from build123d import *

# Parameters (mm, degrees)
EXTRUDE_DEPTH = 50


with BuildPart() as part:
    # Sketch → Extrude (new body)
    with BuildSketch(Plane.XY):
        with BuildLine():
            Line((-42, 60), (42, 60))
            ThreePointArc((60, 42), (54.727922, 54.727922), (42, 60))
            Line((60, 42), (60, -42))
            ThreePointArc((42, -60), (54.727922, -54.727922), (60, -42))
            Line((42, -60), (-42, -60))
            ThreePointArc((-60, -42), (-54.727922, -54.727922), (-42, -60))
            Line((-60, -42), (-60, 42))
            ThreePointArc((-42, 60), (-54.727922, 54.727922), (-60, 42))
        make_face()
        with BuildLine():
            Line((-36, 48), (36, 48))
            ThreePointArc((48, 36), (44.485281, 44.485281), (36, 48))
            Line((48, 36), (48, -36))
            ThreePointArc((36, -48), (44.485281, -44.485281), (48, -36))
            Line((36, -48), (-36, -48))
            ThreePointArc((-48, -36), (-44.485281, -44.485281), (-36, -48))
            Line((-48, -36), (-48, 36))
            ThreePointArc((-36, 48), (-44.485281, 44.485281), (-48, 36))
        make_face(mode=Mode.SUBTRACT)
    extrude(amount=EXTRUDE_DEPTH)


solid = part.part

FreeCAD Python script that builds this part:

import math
import FreeCAD as App
import Part
import Sketcher

doc = App.newDocument("Part")
body = doc.addObject("PartDesign::Body", "Body")

# Sketch on XY plane
sketch1 = body.newObject("Sketcher::SketchObject", "Sketch")
sketch1.AttachmentSupport = (doc.getObject("XY_Plane"), [""])
sketch1.MapMode = "FlatFace"
sketch1.addGeometry([
    Part.LineSegment(App.Vector(42, 60, 0), App.Vector(-42, 60, 0)),  # 0
    Part.ArcOfCircle(Part.Circle(App.Vector(-42, 42, 0), App.Vector(0, 0, 1), 18), math.radians(90), math.radians(180)),  # 1
    Part.LineSegment(App.Vector(-60, 42, 0), App.Vector(-60, -42, 0)),  # 2
    Part.ArcOfCircle(Part.Circle(App.Vector(-42, -42, 0), App.Vector(0, 0, 1), 18), math.radians(-180), math.radians(-90)),  # 3
    Part.LineSegment(App.Vector(-42, -60, 0), App.Vector(42, -60, 0)),  # 4
    Part.ArcOfCircle(Part.Circle(App.Vector(42, -42, 0), App.Vector(0, 0, 1), 18), math.radians(-90), math.radians(0)),  # 5
    Part.LineSegment(App.Vector(60, -42, 0), App.Vector(60, 42, 0)),  # 6
    Part.ArcOfCircle(Part.Circle(App.Vector(42, 42, 0), App.Vector(0, 0, 1), 18), math.radians(0), math.radians(90)),  # 7
    Part.LineSegment(App.Vector(-36, 48, 0), App.Vector(36, 48, 0)),  # 8
    Part.ArcOfCircle(Part.Circle(App.Vector(36, 36, 0), App.Vector(0, 0, 1), 12), math.radians(0), math.radians(90)),  # 9
    Part.LineSegment(App.Vector(48, 36, 0), App.Vector(48, -36, 0)),  # 10
    Part.ArcOfCircle(Part.Circle(App.Vector(36, -36, 0), App.Vector(0, 0, 1), 12), math.radians(-90), math.radians(0)),  # 11
    Part.LineSegment(App.Vector(36, -48, 0), App.Vector(-36, -48, 0)),  # 12
    Part.ArcOfCircle(Part.Circle(App.Vector(-36, -36, 0), App.Vector(0, 0, 1), 12), math.radians(-180), math.radians(-90)),  # 13
    Part.LineSegment(App.Vector(-48, -36, 0), App.Vector(-48, 36, 0)),  # 14
    Part.ArcOfCircle(Part.Circle(App.Vector(-36, 36, 0), App.Vector(0, 0, 1), 12), math.radians(90), math.radians(180)),  # 15
], False)
sketch1.addConstraint([
    Sketcher.Constraint("Tangent", 0, 2, 1, 1),
    Sketcher.Constraint("Tangent", 1, 2, 2, 1),
    Sketcher.Constraint("Tangent", 2, 2, 3, 1),
    Sketcher.Constraint("Tangent", 3, 2, 4, 1),
    Sketcher.Constraint("Tangent", 4, 2, 5, 1),
    Sketcher.Constraint("Tangent", 5, 2, 6, 1),
    Sketcher.Constraint("Tangent", 6, 2, 7, 1),
    Sketcher.Constraint("Tangent", 7, 2, 0, 1),
    Sketcher.Constraint("Tangent", 8, 2, 9, 2),
    Sketcher.Constraint("Tangent", 9, 1, 10, 1),
    Sketcher.Constraint("Tangent", 10, 2, 11, 2),
    Sketcher.Constraint("Tangent", 11, 1, 12, 1),
    Sketcher.Constraint("Tangent", 12, 2, 13, 2),
    Sketcher.Constraint("Tangent", 13, 1, 14, 1),
    Sketcher.Constraint("Tangent", 14, 2, 15, 2),
    Sketcher.Constraint("Tangent", 15, 1, 8, 1),
    Sketcher.Constraint("Horizontal", 0),
    Sketcher.Constraint("Vertical", 2),
    Sketcher.Constraint("Horizontal", 4),
    Sketcher.Constraint("Vertical", 6),
    Sketcher.Constraint("Horizontal", 8),
    Sketcher.Constraint("Vertical", 10),
    Sketcher.Constraint("Horizontal", 12),
    Sketcher.Constraint("Vertical", 14),
    Sketcher.Constraint("Equal", 1, 3),
    Sketcher.Constraint("Equal", 3, 5),
    Sketcher.Constraint("Equal", 5, 7),
    Sketcher.Constraint("Equal", 9, 11),
    Sketcher.Constraint("Equal", 11, 13),
    Sketcher.Constraint("Equal", 13, 15),
    Sketcher.Constraint("Symmetric", 1, 3, 5, 3, -1, 1),
    Sketcher.Constraint("Symmetric", 9, 3, 13, 3, -1, 1),
    Sketcher.Constraint("Equal", 4, 2),
    Sketcher.Constraint("Equal", 12, 10),
    Sketcher.Constraint("Radius", 1, 18.0),
    Sketcher.Constraint("Radius", 9, 12.000001),
    Sketcher.Constraint("DistanceX", 0, 2, 0, 1, 84.0),
    Sketcher.Constraint("DistanceX", 8, 1, 8, 2, 72.0),
])
pad1 = body.newObject("PartDesign::Pad", "Pad")
pad1.Profile = sketch1
pad1.Length = 50

doc.recompute()
